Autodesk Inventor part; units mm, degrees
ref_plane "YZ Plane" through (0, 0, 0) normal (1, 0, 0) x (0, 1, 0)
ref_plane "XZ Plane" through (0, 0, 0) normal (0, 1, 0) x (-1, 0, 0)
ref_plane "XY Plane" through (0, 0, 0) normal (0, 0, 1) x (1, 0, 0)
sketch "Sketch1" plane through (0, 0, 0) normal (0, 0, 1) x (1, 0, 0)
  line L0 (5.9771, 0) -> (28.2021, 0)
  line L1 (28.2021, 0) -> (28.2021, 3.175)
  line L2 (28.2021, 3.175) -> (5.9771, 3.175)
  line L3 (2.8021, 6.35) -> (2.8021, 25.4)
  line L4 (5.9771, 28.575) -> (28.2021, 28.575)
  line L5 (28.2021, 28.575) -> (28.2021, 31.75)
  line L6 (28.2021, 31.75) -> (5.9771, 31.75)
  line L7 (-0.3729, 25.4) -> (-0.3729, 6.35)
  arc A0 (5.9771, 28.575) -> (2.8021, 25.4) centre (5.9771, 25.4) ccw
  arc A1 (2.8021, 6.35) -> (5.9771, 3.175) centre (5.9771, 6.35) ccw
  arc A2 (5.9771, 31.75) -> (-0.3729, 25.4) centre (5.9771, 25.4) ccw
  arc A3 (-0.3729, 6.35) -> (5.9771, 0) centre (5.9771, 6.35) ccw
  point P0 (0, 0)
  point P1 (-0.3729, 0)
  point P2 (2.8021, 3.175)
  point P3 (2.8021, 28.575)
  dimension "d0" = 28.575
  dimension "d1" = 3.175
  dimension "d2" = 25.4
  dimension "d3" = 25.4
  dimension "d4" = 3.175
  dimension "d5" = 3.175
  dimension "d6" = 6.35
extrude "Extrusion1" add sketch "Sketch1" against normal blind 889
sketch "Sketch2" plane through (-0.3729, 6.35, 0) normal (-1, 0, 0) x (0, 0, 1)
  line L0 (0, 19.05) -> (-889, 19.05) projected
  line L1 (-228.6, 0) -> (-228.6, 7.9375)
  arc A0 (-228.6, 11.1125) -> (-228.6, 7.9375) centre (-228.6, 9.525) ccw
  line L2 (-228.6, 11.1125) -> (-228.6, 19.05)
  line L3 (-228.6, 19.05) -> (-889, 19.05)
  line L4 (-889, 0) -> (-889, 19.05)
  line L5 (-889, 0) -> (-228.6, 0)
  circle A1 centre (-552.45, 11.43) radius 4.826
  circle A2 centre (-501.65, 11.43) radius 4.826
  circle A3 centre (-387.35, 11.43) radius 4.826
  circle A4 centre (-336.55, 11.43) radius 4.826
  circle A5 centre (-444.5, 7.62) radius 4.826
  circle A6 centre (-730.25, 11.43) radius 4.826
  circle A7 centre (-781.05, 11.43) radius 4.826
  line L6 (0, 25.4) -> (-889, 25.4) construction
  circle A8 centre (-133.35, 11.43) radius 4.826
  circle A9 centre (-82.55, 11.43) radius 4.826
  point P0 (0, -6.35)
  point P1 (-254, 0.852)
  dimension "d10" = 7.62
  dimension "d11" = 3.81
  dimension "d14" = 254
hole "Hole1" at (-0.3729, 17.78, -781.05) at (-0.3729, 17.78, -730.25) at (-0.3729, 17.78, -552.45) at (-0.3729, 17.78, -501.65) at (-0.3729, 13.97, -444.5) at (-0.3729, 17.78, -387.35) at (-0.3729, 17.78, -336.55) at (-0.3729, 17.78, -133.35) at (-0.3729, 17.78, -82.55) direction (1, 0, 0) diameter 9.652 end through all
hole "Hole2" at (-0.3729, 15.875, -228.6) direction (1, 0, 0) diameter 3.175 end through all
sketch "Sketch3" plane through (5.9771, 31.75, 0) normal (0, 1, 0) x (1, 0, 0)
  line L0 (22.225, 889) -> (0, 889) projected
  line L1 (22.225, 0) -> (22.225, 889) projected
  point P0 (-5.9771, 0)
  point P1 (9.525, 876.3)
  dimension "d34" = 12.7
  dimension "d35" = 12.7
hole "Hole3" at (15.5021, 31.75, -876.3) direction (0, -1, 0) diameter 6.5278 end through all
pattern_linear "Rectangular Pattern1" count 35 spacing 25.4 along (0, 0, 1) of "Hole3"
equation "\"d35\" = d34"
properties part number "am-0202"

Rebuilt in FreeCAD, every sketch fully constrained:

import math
import FreeCAD as App
import Part
import Sketcher
Q = App.Units.Quantity

doc = App.newDocument("Part")
body = doc.addObject("PartDesign::Body", "Body")

sketch1 = doc.addObject("Sketcher::SketchObject", "Sketch")
body.addObject(sketch1)
sketch1.AttachmentSupport = (doc.XY_Plane, [""])
sketch1.MapMode = "FlatFace"
sketch1.addGeometry(Part.ArcOfCircle(Part.Circle(App.Vector(6, 6.3, 0), App.Vector(0, 0, 1), 6.3), math.radians(180), math.radians(270)), False)
sketch1.addGeometry(Part.LineSegment(App.Vector(6, 0, 0), App.Vector(28.2, 0, 0)), False)
sketch1.addGeometry(Part.LineSegment(App.Vector(28.2, 0, 0), App.Vector(28.2, 3.2, 0)), False)
sketch1.addGeometry(Part.LineSegment(App.Vector(28.2, 3.2, 0), App.Vector(6, 3.2, 0)), False)
sketch1.addGeometry(Part.ArcOfCircle(Part.Circle(App.Vector(6, 6.3, 0), App.Vector(0, 0, 1), 3.2), math.radians(180), math.radians(270)), False)
sketch1.addGeometry(Part.LineSegment(App.Vector(2.8, 6.3, 0), App.Vector(2.8, 25.4, 0)), False)
sketch1.addGeometry(Part.ArcOfCircle(Part.Circle(App.Vector(6, 25.4, 0), App.Vector(0, 0, 1), 3.2), math.radians(90), math.radians(180)), False)
sketch1.addGeometry(Part.LineSegment(App.Vector(6, 28.6, 0), App.Vector(28.2, 28.6, 0)), False)
sketch1.addGeometry(Part.LineSegment(App.Vector(28.2, 28.6, 0), App.Vector(28.2, 31.8, 0)), False)
sketch1.addGeometry(Part.LineSegment(App.Vector(28.2, 31.8, 0), App.Vector(6, 31.8, 0)), False)
sketch1.addGeometry(Part.ArcOfCircle(Part.Circle(App.Vector(6, 25.4, 0), App.Vector(0, 0, 1), 6.4), math.radians(90), math.radians(180)), False)
sketch1.addGeometry(Part.LineSegment(App.Vector(-0.4, 25.4, 0), App.Vector(-0.4, 6.3, 0)), False)
sketch1.addConstraint(Sketcher.Constraint("Tangent", 0, 2, 1, 1))
sketch1.addConstraint(Sketcher.Constraint("Coincident", 1, 2, 2, 1))
sketch1.addConstraint(Sketcher.Constraint("Coincident", 2, 2, 3, 1))
sketch1.addConstraint(Sketcher.Constraint("Tangent", 3, 2, 4, 2))
sketch1.addConstraint(Sketcher.Constraint("Tangent", 4, 1, 5, 1))
sketch1.addConstraint(Sketcher.Constraint("Tangent", 5, 2, 6, 2))
sketch1.addConstraint(Sketcher.Constraint("Tangent", 6, 1, 7, 1))
sketch1.addConstraint(Sketcher.Constraint("Coincident", 7, 2, 8, 1))
sketch1.addConstraint(Sketcher.Constraint("Coincident", 8, 2, 9, 1))
sketch1.addConstraint(Sketcher.Constraint("Tangent", 9, 2, 10, 1))
sketch1.addConstraint(Sketcher.Constraint("Tangent", 10, 2, 11, 1))
sketch1.addConstraint(Sketcher.Constraint("Tangent", 11, 2, 0, 1))
sketch1.addConstraint(Sketcher.Constraint("Horizontal", 1))
sketch1.addConstraint(Sketcher.Constraint("Vertical", 2))
sketch1.addConstraint(Sketcher.Constraint("Horizontal", 3))
sketch1.addConstraint(Sketcher.Constraint("Vertical", 5))
sketch1.addConstraint(Sketcher.Constraint("Horizontal", 7))
sketch1.addConstraint(Sketcher.Constraint("Vertical", 8))
sketch1.addConstraint(Sketcher.Constraint("Horizontal", 9))
sketch1.addConstraint(Sketcher.Constraint("Vertical", 11))
sketch1.addConstraint(Sketcher.Constraint("Coincident", 4, 3, 0, 3))
sketch1.addConstraint(Sketcher.Constraint("Coincident", 10, 3, 6, 3))
sketch1.addConstraint(Sketcher.Constraint("Equal", 4, 6))
sketch1.addConstraint(Sketcher.Constraint("PointOnObject", 0, 2, -1))
sketch1.addConstraint(Sketcher.Constraint("Vertical", 2, 2, 7, 2))
sketch1.addConstraint(Sketcher.Constraint("Radius", 0, Q("0.25 in")))
sketch1.addConstraint(Sketcher.Constraint("DistanceY", -1, 1, 6, 3, Q("1 in")))
sketch1.addConstraint(Sketcher.Constraint("Radius", 4, Q("0.125 in")))
sketch1.addConstraint(Sketcher.Constraint("DistanceX", 5, 2, 7, 2, Q("1 in")))
sketch1.addConstraint(Sketcher.Constraint("DistanceX", -1, 1, 0, 3, Q("5.977 mm")))
pad1 = doc.addObject("PartDesign::Pad", "Pad")
body.addObject(pad1)
pad1.Profile = sketch1
pad1.Length = Q("35 in")
pad1.Reversed = True

sketch2 = doc.addObject("Sketcher::SketchObject", "Sketch001")
body.addObject(sketch2)
sketch2.AttachmentSupport = (doc.YZ_Plane, [""])
sketch2.MapMode = "FlatFace"
sketch2.AttachmentOffset = App.Placement(App.Vector(0, 0, -0.3729), App.Rotation())
sketch2.addGeometry(Part.Circle(App.Vector(17.8, -781, 0), App.Vector(0, 0, 1), 4.8), False)
sketch2.addGeometry(Part.Circle(App.Vector(17.8, -730.2, 0), App.Vector(0, 0, 1), 4.8), False)
sketch2.addGeometry(Part.Circle(App.Vector(17.8, -552.5, 0), App.Vector(0, 0, 1), 4.8), False)
sketch2.addGeometry(Part.Circle(App.Vector(17.8, -501.6, 0), App.Vector(0, 0, 1), 4.8), False)
sketch2.addGeometry(Part.Circle(App.Vector(14, -444.5, 0), App.Vector(0, 0, 1), 4.8), False)
sketch2.addGeometry(Part.Circle(App.Vector(17.8, -387.4, 0), App.Vector(0, 0, 1), 4.8), False)
sketch2.addGeometry(Part.Circle(App.Vector(17.8, -336.6, 0), App.Vector(0, 0, 1), 4.8), False)
sketch2.addGeometry(Part.Circle(App.Vector(17.8, -133.3, 0), App.Vector(0, 0, 1), 4.8), False)
sketch2.addGeometry(Part.Circle(App.Vector(17.8, -82.5, 0), App.Vector(0, 0, 1), 4.8), False)
sketch2.addConstraint(Sketcher.Constraint("Equal", 0, 1))
sketch2.addConstraint(Sketcher.Constraint("Equal", 1, 2))
sketch2.addConstraint(Sketcher.Constraint("Equal", 2, 3))
sketch2.addConstraint(Sketcher.Constraint("Equal", 3, 4))
sketch2.addConstraint(Sketcher.Constraint("Equal", 4, 5))
sketch2.addConstraint(Sketcher.Constraint("Equal", 5, 6))
sketch2.addConstraint(Sketcher.Constraint("Equal", 6, 7))
sketch2.addConstraint(Sketcher.Constraint("Equal", 7, 8))
sketch2.addConstraint(Sketcher.Constraint("Vertical", 0, 3, 1, 3))
sketch2.addConstraint(Sketcher.Constraint("Vertical", 1, 3, 2, 3))
sketch2.addConstraint(Sketcher.Constraint("Vertical", 2, 3, 3, 3))
sketch2.addConstraint(Sketcher.Constraint("Vertical", 3, 3, 5, 3))
sketch2.addConstraint(Sketcher.Constraint("Vertical", 5, 3, 6, 3))
sketch2.addConstraint(Sketcher.Constraint("Vertical", 6, 3, 7, 3))
sketch2.addConstraint(Sketcher.Constraint("Vertical", 7, 3, 8, 3))
sketch2.addConstraint(Sketcher.Constraint("Diameter", 0, Q("0.38 in")))
sketch2.addConstraint(Sketcher.Constraint("DistanceY", 0, 3, 1, 3, Q("2 in")))
sketch2.addConstraint(Sketcher.Constraint("DistanceY", 1, 3, 2, 3, Q("7 in")))
sketch2.addConstraint(Sketcher.Constraint("DistanceY", 2, 3, 3, 3, Q("2 in")))
sketch2.addConstraint(Sketcher.Constraint("DistanceY", 5, 3, 6, 3, Q("2 in")))
sketch2.addConstraint(Sketcher.Constraint("DistanceY", 6, 3, 7, 3, Q("8 in")))
sketch2.addConstraint(Sketcher.Constraint("DistanceY", 7, 3, 8, 3, Q("2 in")))
sketch2.addConstraint(Sketcher.Constraint("DistanceX", -1, 1, 0, 3, Q("0.7 in")))
sketch2.addConstraint(Sketcher.Constraint("DistanceY", 4, 3, -1, 1, Q("17.5 in")))
sketch2.addConstraint(Sketcher.Constraint("DistanceY", 3, 3, 5, 3, Q("4.5 in")))
sketch2.addConstraint(Sketcher.Constraint("DistanceY", 0, 3, -1, 1, Q("30.75 in")))
sketch2.addConstraint(Sketcher.Constraint("DistanceX", -1, 1, 4, 3, Q("0.55 in")))
doc.recompute()
hole = doc.addObject("PartDesign::Hole", "Hole")
body.addObject(hole)
hole.Profile = sketch2
hole.ThreadType = "None"
hole.Diameter = Q("0.38 in")
hole.DepthType = "ThroughAll"
hole.Reversed = True

sketch3 = doc.addObject("Sketcher::SketchObject", "Sketch002")
body.addObject(sketch3)
sketch3.AttachmentSupport = (doc.YZ_Plane, [""])
sketch3.MapMode = "FlatFace"
sketch3.AttachmentOffset = App.Placement(App.Vector(0, 0, -0.3729), App.Rotation())
sketch3.addGeometry(Part.Circle(App.Vector(15.9, -228.6, 0), App.Vector(0, 0, 1), 1.6), False)
sketch3.addConstraint(Sketcher.Constraint("Diameter", 0, Q("0.125 in")))
sketch3.addConstraint(Sketcher.Constraint("DistanceY", 0, 3, -1, 1, Q("9 in")))
sketch3.addConstraint(Sketcher.Constraint("DistanceX", -1, 1, 0, 3, Q("0.625 in")))
doc.recompute()
hole2 = doc.addObject("PartDesign::Hole", "Hole001")
body.addObject(hole2)
hole2.Profile = sketch3
hole2.ThreadType = "None"
hole2.Diameter = Q("0.125 in")
hole2.DepthType = "ThroughAll"
hole2.Reversed = True

sketch4 = doc.addObject("Sketcher::SketchObject", "Sketch003")
body.addObject(sketch4)
sketch4.AttachmentSupport = (doc.XZ_Plane, [""])
sketch4.MapMode = "FlatFace"
sketch4.AttachmentOffset = App.Placement(App.Vector(0, 0, -1.25 * 25.4), App.Rotation())
sketch4.addGeometry(Part.Circle(App.Vector(15.5, -876.3, 0), App.Vector(0, 0, 1), 3.3), False)
sketch4.addConstraint(Sketcher.Constraint("Diameter", 0, Q("0.257 in")))
sketch4.addConstraint(Sketcher.Constraint("DistanceY", 0, 3, -1, 1, Q("34.5 in")))
sketch4.addConstraint(Sketcher.Constraint("DistanceX", -1, 1, 0, 3, Q("15.502 mm")))
doc.recompute()
hole3 = doc.addObject("PartDesign::Hole", "Hole002")
body.addObject(hole3)
hole3.Profile = sketch4
hole3.ThreadType = "None"
hole3.Diameter = Q("0.257 in")
hole3.DepthType = "ThroughAll"
hole3.Reversed = True
doc.recompute()

linearpattern = doc.addObject("PartDesign::LinearPattern", "LinearPattern")
body.addObject(linearpattern)
linearpattern.Originals = [hole3]
linearpattern.Direction = (doc.Z_Axis, [""])
linearpattern.Mode = "offset"
linearpattern.Offset = Q("1 in")
linearpattern.Occurrences = 35
body.Tip = linearpattern

doc.recompute()
